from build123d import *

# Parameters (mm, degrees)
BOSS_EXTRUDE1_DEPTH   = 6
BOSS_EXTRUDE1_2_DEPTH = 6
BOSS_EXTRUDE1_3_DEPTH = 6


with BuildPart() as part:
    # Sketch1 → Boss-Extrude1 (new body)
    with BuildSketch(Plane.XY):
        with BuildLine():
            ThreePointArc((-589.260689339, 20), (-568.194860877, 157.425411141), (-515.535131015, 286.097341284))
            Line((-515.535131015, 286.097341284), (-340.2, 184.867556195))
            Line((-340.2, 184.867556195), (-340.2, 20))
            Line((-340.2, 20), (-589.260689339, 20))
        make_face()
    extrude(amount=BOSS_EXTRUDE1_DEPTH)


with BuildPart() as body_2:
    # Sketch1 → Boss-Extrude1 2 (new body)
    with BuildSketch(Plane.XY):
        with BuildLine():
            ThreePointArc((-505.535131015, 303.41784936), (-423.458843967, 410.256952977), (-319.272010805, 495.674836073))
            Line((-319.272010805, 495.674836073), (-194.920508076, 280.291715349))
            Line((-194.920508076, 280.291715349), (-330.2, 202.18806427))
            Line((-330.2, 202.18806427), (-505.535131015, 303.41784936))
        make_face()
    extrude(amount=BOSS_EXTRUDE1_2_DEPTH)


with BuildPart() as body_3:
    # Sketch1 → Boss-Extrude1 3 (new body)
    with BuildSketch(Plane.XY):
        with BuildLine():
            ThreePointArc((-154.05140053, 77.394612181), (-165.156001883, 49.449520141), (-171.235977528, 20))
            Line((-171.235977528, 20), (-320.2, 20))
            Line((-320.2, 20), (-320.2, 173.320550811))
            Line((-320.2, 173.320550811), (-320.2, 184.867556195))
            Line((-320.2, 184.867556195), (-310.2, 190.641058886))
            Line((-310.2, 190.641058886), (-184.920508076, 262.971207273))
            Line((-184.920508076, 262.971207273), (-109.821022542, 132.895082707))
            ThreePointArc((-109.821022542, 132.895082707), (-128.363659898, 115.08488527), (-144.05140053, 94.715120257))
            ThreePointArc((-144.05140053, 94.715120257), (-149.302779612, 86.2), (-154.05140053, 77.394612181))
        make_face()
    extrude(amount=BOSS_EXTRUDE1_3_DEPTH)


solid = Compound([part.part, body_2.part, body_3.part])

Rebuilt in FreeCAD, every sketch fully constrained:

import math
import FreeCAD as App
import Part
import Sketcher

V = App.Vector
Q = App.Units.Quantity

doc = App.newDocument("Part")
params = doc.addObject("Spreadsheet::Sheet", "Params")
for row, (alias, value) in enumerate([
    ("sketch1_radius", "589.6 mm"),
    ("pad1_length", "6 mm"),
    ("sketch2_radius", "589.6 mm"),
    ("pad2_length", "6 mm"),
    ("sketch3_radius", "172.4 mm"),
    ("pad3_length", "6 mm"),
], start=1):
    params.set(f"A{row}", alias)
    params.set(f"B{row}", "=" + value)
    params.setAlias(f"B{row}", alias)

body = doc.addObject("PartDesign::Body", "Body")

sketch1 = body.newObject("Sketcher::SketchObject", "Sketch")
sketch1.AttachmentSupport = (doc.getObject("XY_Plane"), [""])
sketch1.MapMode = "FlatFace"
sketch1.addGeometry([
    Part.ArcOfCircle(Part.Circle(V(0, 0, 0), V(0, 0, 1), 589.6), math.radians(150.97182), math.radians(178.05608)),
    Part.LineSegment(V(-589.260689, 20, 0), V(-340.2, 20, 0)),
    Part.LineSegment(V(-340.2, 20, 0), V(-340.2, 184.867556, 0)),
    Part.LineSegment(V(-340.2, 184.867556, 0), V(-515.535131, 286.097341, 0)),
], False)
sketch1.addConstraint([
    Sketcher.Constraint("Coincident", 0, 2, 1, 1),
    Sketcher.Constraint("Coincident", 1, 2, 2, 1),
    Sketcher.Constraint("Coincident", 2, 2, 3, 1),
    Sketcher.Constraint("Coincident", 3, 2, 0, 1),
    Sketcher.Constraint("Horizontal", 1),
    Sketcher.Constraint("Vertical", 2),
    Sketcher.Constraint("Coincident", 0, 3, -1, 1),
    Sketcher.Constraint("Radius", 0, 589.6),
    Sketcher.Constraint("Angle", 3, Q("150 deg")),
    Sketcher.Constraint("DistanceY", -1, 1, 1, 2, 20.0),
    Sketcher.Constraint("DistanceX", 1, 2, -1, 1, 340.2),
    Sketcher.Constraint("Distance", 3, 202.45957),
])
sketch1.setExpression("Constraints[7]", "Params.sketch1_radius")
pad1 = body.newObject("PartDesign::Pad", "Pad")
pad1.Profile = sketch1
pad1.setExpression("Length", "Params.pad1_length")
body2 = doc.addObject("PartDesign::Body", "Body001")

sketch2 = body2.newObject("Sketcher::SketchObject", "Sketch001")
sketch2.AttachmentSupport = (doc.getObject("XY_Plane001"), [""])
sketch2.MapMode = "FlatFace"
sketch2.addGeometry([
    Part.ArcOfCircle(Part.Circle(V(0, 0, 0), V(0, 0, 1), 589.6), math.radians(122.786226), math.radians(149.02818)),
    Part.LineSegment(V(-505.535131, 303.417849, 0), V(-330.2, 202.188064, 0)),
    Part.LineSegment(V(-330.2, 202.188064, 0), V(-194.920508, 280.291715, 0)),
    Part.LineSegment(V(-194.920508, 280.291715, 0), V(-319.272011, 495.674836, 0)),
], False)
sketch2.addConstraint([
    Sketcher.Constraint("Coincident", 0, 2, 1, 1),
    Sketcher.Constraint("Coincident", 1, 2, 2, 1),
    Sketcher.Constraint("Coincident", 2, 2, 3, 1),
    Sketcher.Constraint("Coincident", 3, 2, 0, 1),
    Sketcher.Constraint("Coincident", 0, 3, -1, 1),
    Sketcher.Constraint("Perpendicular", 2, 3),
    Sketcher.Constraint("Radius", 0, 589.6),
    Sketcher.Constraint("Angle", 1, Q("-30 deg")),
    Sketcher.Constraint("Angle", 2, Q("30 deg")),
    Sketcher.Constraint("DistanceX", 1, 2, -1, 1, 330.2),
    Sketcher.Constraint("Distance", 1, 202.45957),
    Sketcher.Constraint("DistanceX", 2, 2, -1, 1, 194.920508),
])
sketch2.setExpression("Constraints[6]", "Params.sketch2_radius")
pad2 = body2.newObject("PartDesign::Pad", "Pad001")
pad2.Profile = sketch2
pad2.setExpression("Length", "Params.pad2_length")
body3 = doc.addObject("PartDesign::Body", "Body002")

sketch3 = body3.newObject("Sketcher::SketchObject", "Sketch002")
sketch3.AttachmentSupport = (doc.getObject("XY_Plane002"), [""])
sketch3.MapMode = "FlatFace"
sketch3.addGeometry([
    Part.ArcOfCircle(Part.Circle(V(0, 0, 0), V(0, 0, 1), 172.4), math.radians(153.325288), math.radians(173.338158)),
    Part.ArcOfCircle(Part.Circle(V(0, 0, 0), V(0, 0, 1), 172.4), math.radians(146.674712), math.radians(153.325288)),
    Part.ArcOfCircle(Part.Circle(V(0, 0, 0), V(0, 0, 1), 172.4), math.radians(129.569437), math.radians(146.674712)),
    Part.LineSegment(V(-109.821023, 132.895083, 0), V(-184.920508, 262.971207, 0)),
    Part.LineSegment(V(-184.920508, 262.971207, 0), V(-310.2, 190.641059, 0)),
    Part.LineSegment(V(-310.2, 190.641059, 0), V(-320.2, 184.867556, 0)),
    Part.LineSegment(V(-320.2, 184.867556, 0), V(-320.2, 20, 0)),
    Part.LineSegment(V(-320.2, 20, 0), V(-171.235978, 20, 0)),
], False)
sketch3.addConstraint([
    Sketcher.Constraint("Tangent", 0, 1, 1, 2),
    Sketcher.Constraint("Tangent", 1, 1, 2, 2),
    Sketcher.Constraint("Coincident", 2, 1, 3, 1),
    Sketcher.Constraint("Coincident", 3, 2, 4, 1),
    Sketcher.Constraint("Coincident", 4, 2, 5, 1),
    Sketcher.Constraint("Coincident", 5, 2, 6, 1),
    Sketcher.Constraint("Coincident", 6, 2, 7, 1),
    Sketcher.Constraint("Coincident", 7, 2, 0, 2),
    Sketcher.Constraint("Vertical", 6),
    Sketcher.Constraint("Horizontal", 7),
    Sketcher.Constraint("Coincident", 0, 3, -1, 1),
    Sketcher.Constraint("Coincident", 2, 3, -1, 1),
    Sketcher.Constraint("Perpendicular", 3, 4),
    Sketcher.Constraint("Parallel", 4, 5),
    Sketcher.Constraint("Radius", 0, 172.4),
    Sketcher.Constraint("Angle", 3, Q("120 deg")),
    Sketcher.Constraint("DistanceY", -1, 1, 6, 2, 20.0),
    Sketcher.Constraint("DistanceX", 0, 1, 1, 1, 10.0),
    Sketcher.Constraint("DistanceX", 5, 2, 4, 2, 10.0),
    Sketcher.Constraint("DistanceX", 4, 2, -1, 1, 310.2),
    Sketcher.Constraint("DistanceX", 0, 1, -1, 1, 154.051401),
    Sketcher.Constraint("Distance", 3, 150.198971),
    Sketcher.Constraint("DistanceY", 6, 2, 6, 1, 164.867556),
])
sketch3.setExpression("Constraints[14]", "Params.sketch3_radius")
pad3 = body3.newObject("PartDesign::Pad", "Pad002")
pad3.Profile = sketch3
pad3.setExpression("Length", "Params.pad3_length")

doc.recompute()
